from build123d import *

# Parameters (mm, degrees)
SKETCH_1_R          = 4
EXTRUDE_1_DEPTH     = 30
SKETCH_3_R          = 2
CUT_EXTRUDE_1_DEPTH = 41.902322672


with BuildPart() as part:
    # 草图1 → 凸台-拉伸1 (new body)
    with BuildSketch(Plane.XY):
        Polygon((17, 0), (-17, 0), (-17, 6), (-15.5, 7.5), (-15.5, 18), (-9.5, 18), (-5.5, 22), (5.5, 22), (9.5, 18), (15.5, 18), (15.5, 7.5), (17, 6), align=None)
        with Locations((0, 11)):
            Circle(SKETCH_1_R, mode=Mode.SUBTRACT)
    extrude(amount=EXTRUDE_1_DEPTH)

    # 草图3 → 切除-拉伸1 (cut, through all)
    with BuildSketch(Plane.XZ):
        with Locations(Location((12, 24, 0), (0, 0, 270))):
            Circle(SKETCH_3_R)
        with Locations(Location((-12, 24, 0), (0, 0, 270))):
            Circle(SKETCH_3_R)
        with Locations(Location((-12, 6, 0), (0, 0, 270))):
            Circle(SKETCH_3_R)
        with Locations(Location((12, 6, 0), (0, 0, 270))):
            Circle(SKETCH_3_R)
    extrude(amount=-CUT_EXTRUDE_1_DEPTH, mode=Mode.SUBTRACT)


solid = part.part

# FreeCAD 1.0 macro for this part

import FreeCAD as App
import Part
import Sketcher

V = App.Vector
Q = App.Units.Quantity


def add_polygon(sketch, points):
    """Adds a closed chain of lines whose ends are joined by coincident constraints."""
    first, n = sketch.GeometryCount, len(points)
    for a, b in zip(points, points[1:] + points[:1]):
        sketch.addGeometry(Part.LineSegment(App.Vector(*a, 0), App.Vector(*b, 0)), False)
    for i in range(n):
        sketch.addConstraint(Sketcher.Constraint("Coincident", first + i, 2, first + (i + 1) % n, 1))

doc = App.newDocument("Part")
body = doc.addObject("PartDesign::Body", "Body")

sketch1 = body.newObject("Sketcher::SketchObject", "Sketch")
sketch1.AttachmentSupport = (doc.getObject("XY_Plane"), [""])
sketch1.MapMode = "FlatFace"
add_polygon(sketch1, [(-17, 0), (17, 0), (17, 6), (15.5, 7.5), (15.5, 18), (9.5, 18), (5.5, 22), (-5.5, 22), (-9.5, 18), (-15.5, 18), (-15.5, 7.5), (-17, 6)])
sketch1.addGeometry(Part.Circle(V(0, 11, 0), V(0, 0, 1), 4), False)
sketch1.addConstraint(Sketcher.Constraint("Horizontal", 0))
sketch1.addConstraint(Sketcher.Constraint("Vertical", 1))
sketch1.addConstraint(Sketcher.Constraint("Vertical", 3))
sketch1.addConstraint(Sketcher.Constraint("Horizontal", 4))
sketch1.addConstraint(Sketcher.Constraint("Horizontal", 6))
sketch1.addConstraint(Sketcher.Constraint("Horizontal", 8))
sketch1.addConstraint(Sketcher.Constraint("Vertical", 9))
sketch1.addConstraint(Sketcher.Constraint("Vertical", 11))
sketch1.addConstraint(Sketcher.Constraint("Symmetric", 0, 2, 11, 2, -1, 1))
sketch1.addConstraint(Sketcher.Constraint("Symmetric", 4, 2, 7, 2, -2))
sketch1.addConstraint(Sketcher.Constraint("Symmetric", 2, 2, 9, 2, -2))
sketch1.addConstraint(Sketcher.Constraint("PointOnObject", 12, 3, -2))
sketch1.addConstraint(Sketcher.Constraint("Parallel", 2, 5))
sketch1.addConstraint(Sketcher.Constraint("Perpendicular", 5, 7))
sketch1.addConstraint(Sketcher.Constraint("Parallel", 7, 10))
sketch1.addConstraint(Sketcher.Constraint("Horizontal", 1, 2, 10, 2))
sketch1.addConstraint(Sketcher.Constraint("Equal", 8, 1))
sketch1.addConstraint(Sketcher.Constraint("Diameter", 12, Q("8 mm")))
sketch1.addConstraint(Sketcher.Constraint("DistanceX", 0, 1, 0, 2, Q("34 mm")))
sketch1.addConstraint(Sketcher.Constraint("DistanceX", 4, 2, 4, 1, Q("6 mm")))
sketch1.addConstraint(Sketcher.Constraint("DistanceX", 6, 2, 6, 1, Q("11 mm")))
sketch1.addConstraint(Sketcher.Constraint("DistanceY", 3, 1, 3, 2, Q("10.5 mm")))
sketch1.addConstraint(Sketcher.Constraint("DistanceY", -1, 1, 12, 3, Q("11 mm")))
sketch1.addConstraint(Sketcher.Constraint("DistanceY", -1, 1, 3, 2, Q("18 mm")))
pad1 = body.newObject("PartDesign::Pad", "Pad")
pad1.Profile = sketch1
pad1.Length = 30

sketch2 = body.newObject("Sketcher::SketchObject", "Sketch001")
sketch2.AttachmentSupport = (doc.getObject("XZ_Plane"), [""])
sketch2.MapMode = "FlatFace"
sketch2.addGeometry(Part.Circle(V(12, 24, 0), V(0, 0, 1), 2), False)
sketch2.addGeometry(Part.Circle(V(-12, 24, 0), V(0, 0, 1), 2), False)
sketch2.addGeometry(Part.Circle(V(-12, 6, 0), V(0, 0, 1), 2), False)
sketch2.addGeometry(Part.Circle(V(12, 6, 0), V(0, 0, 1), 2), False)
sketch2.addConstraint(Sketcher.Constraint("Equal", 0, 1))
sketch2.addConstraint(Sketcher.Constraint("Equal", 1, 2))
sketch2.addConstraint(Sketcher.Constraint("Equal", 2, 3))
sketch2.addConstraint(Sketcher.Constraint("Symmetric", 0, 3, 1, 3, -2))
sketch2.addConstraint(Sketcher.Constraint("Symmetric", 2, 3, 3, 3, -2))
sketch2.addConstraint(Sketcher.Constraint("Vertical", 1, 3, 2, 3))
sketch2.addConstraint(Sketcher.Constraint("Diameter", 0, Q("4 mm")))
sketch2.addConstraint(Sketcher.Constraint("DistanceX", -1, 1, 0, 3, Q("12 mm")))
sketch2.addConstraint(Sketcher.Constraint("DistanceY", -1, 1, 0, 3, Q("24 mm")))
sketch2.addConstraint(Sketcher.Constraint("DistanceY", -1, 1, 2, 3, Q("6 mm")))
pocket1 = body.newObject("PartDesign::Pocket", "Pocket")
pocket1.Profile = sketch2
pocket1.Type = "ThroughAll"

doc.recompute()
